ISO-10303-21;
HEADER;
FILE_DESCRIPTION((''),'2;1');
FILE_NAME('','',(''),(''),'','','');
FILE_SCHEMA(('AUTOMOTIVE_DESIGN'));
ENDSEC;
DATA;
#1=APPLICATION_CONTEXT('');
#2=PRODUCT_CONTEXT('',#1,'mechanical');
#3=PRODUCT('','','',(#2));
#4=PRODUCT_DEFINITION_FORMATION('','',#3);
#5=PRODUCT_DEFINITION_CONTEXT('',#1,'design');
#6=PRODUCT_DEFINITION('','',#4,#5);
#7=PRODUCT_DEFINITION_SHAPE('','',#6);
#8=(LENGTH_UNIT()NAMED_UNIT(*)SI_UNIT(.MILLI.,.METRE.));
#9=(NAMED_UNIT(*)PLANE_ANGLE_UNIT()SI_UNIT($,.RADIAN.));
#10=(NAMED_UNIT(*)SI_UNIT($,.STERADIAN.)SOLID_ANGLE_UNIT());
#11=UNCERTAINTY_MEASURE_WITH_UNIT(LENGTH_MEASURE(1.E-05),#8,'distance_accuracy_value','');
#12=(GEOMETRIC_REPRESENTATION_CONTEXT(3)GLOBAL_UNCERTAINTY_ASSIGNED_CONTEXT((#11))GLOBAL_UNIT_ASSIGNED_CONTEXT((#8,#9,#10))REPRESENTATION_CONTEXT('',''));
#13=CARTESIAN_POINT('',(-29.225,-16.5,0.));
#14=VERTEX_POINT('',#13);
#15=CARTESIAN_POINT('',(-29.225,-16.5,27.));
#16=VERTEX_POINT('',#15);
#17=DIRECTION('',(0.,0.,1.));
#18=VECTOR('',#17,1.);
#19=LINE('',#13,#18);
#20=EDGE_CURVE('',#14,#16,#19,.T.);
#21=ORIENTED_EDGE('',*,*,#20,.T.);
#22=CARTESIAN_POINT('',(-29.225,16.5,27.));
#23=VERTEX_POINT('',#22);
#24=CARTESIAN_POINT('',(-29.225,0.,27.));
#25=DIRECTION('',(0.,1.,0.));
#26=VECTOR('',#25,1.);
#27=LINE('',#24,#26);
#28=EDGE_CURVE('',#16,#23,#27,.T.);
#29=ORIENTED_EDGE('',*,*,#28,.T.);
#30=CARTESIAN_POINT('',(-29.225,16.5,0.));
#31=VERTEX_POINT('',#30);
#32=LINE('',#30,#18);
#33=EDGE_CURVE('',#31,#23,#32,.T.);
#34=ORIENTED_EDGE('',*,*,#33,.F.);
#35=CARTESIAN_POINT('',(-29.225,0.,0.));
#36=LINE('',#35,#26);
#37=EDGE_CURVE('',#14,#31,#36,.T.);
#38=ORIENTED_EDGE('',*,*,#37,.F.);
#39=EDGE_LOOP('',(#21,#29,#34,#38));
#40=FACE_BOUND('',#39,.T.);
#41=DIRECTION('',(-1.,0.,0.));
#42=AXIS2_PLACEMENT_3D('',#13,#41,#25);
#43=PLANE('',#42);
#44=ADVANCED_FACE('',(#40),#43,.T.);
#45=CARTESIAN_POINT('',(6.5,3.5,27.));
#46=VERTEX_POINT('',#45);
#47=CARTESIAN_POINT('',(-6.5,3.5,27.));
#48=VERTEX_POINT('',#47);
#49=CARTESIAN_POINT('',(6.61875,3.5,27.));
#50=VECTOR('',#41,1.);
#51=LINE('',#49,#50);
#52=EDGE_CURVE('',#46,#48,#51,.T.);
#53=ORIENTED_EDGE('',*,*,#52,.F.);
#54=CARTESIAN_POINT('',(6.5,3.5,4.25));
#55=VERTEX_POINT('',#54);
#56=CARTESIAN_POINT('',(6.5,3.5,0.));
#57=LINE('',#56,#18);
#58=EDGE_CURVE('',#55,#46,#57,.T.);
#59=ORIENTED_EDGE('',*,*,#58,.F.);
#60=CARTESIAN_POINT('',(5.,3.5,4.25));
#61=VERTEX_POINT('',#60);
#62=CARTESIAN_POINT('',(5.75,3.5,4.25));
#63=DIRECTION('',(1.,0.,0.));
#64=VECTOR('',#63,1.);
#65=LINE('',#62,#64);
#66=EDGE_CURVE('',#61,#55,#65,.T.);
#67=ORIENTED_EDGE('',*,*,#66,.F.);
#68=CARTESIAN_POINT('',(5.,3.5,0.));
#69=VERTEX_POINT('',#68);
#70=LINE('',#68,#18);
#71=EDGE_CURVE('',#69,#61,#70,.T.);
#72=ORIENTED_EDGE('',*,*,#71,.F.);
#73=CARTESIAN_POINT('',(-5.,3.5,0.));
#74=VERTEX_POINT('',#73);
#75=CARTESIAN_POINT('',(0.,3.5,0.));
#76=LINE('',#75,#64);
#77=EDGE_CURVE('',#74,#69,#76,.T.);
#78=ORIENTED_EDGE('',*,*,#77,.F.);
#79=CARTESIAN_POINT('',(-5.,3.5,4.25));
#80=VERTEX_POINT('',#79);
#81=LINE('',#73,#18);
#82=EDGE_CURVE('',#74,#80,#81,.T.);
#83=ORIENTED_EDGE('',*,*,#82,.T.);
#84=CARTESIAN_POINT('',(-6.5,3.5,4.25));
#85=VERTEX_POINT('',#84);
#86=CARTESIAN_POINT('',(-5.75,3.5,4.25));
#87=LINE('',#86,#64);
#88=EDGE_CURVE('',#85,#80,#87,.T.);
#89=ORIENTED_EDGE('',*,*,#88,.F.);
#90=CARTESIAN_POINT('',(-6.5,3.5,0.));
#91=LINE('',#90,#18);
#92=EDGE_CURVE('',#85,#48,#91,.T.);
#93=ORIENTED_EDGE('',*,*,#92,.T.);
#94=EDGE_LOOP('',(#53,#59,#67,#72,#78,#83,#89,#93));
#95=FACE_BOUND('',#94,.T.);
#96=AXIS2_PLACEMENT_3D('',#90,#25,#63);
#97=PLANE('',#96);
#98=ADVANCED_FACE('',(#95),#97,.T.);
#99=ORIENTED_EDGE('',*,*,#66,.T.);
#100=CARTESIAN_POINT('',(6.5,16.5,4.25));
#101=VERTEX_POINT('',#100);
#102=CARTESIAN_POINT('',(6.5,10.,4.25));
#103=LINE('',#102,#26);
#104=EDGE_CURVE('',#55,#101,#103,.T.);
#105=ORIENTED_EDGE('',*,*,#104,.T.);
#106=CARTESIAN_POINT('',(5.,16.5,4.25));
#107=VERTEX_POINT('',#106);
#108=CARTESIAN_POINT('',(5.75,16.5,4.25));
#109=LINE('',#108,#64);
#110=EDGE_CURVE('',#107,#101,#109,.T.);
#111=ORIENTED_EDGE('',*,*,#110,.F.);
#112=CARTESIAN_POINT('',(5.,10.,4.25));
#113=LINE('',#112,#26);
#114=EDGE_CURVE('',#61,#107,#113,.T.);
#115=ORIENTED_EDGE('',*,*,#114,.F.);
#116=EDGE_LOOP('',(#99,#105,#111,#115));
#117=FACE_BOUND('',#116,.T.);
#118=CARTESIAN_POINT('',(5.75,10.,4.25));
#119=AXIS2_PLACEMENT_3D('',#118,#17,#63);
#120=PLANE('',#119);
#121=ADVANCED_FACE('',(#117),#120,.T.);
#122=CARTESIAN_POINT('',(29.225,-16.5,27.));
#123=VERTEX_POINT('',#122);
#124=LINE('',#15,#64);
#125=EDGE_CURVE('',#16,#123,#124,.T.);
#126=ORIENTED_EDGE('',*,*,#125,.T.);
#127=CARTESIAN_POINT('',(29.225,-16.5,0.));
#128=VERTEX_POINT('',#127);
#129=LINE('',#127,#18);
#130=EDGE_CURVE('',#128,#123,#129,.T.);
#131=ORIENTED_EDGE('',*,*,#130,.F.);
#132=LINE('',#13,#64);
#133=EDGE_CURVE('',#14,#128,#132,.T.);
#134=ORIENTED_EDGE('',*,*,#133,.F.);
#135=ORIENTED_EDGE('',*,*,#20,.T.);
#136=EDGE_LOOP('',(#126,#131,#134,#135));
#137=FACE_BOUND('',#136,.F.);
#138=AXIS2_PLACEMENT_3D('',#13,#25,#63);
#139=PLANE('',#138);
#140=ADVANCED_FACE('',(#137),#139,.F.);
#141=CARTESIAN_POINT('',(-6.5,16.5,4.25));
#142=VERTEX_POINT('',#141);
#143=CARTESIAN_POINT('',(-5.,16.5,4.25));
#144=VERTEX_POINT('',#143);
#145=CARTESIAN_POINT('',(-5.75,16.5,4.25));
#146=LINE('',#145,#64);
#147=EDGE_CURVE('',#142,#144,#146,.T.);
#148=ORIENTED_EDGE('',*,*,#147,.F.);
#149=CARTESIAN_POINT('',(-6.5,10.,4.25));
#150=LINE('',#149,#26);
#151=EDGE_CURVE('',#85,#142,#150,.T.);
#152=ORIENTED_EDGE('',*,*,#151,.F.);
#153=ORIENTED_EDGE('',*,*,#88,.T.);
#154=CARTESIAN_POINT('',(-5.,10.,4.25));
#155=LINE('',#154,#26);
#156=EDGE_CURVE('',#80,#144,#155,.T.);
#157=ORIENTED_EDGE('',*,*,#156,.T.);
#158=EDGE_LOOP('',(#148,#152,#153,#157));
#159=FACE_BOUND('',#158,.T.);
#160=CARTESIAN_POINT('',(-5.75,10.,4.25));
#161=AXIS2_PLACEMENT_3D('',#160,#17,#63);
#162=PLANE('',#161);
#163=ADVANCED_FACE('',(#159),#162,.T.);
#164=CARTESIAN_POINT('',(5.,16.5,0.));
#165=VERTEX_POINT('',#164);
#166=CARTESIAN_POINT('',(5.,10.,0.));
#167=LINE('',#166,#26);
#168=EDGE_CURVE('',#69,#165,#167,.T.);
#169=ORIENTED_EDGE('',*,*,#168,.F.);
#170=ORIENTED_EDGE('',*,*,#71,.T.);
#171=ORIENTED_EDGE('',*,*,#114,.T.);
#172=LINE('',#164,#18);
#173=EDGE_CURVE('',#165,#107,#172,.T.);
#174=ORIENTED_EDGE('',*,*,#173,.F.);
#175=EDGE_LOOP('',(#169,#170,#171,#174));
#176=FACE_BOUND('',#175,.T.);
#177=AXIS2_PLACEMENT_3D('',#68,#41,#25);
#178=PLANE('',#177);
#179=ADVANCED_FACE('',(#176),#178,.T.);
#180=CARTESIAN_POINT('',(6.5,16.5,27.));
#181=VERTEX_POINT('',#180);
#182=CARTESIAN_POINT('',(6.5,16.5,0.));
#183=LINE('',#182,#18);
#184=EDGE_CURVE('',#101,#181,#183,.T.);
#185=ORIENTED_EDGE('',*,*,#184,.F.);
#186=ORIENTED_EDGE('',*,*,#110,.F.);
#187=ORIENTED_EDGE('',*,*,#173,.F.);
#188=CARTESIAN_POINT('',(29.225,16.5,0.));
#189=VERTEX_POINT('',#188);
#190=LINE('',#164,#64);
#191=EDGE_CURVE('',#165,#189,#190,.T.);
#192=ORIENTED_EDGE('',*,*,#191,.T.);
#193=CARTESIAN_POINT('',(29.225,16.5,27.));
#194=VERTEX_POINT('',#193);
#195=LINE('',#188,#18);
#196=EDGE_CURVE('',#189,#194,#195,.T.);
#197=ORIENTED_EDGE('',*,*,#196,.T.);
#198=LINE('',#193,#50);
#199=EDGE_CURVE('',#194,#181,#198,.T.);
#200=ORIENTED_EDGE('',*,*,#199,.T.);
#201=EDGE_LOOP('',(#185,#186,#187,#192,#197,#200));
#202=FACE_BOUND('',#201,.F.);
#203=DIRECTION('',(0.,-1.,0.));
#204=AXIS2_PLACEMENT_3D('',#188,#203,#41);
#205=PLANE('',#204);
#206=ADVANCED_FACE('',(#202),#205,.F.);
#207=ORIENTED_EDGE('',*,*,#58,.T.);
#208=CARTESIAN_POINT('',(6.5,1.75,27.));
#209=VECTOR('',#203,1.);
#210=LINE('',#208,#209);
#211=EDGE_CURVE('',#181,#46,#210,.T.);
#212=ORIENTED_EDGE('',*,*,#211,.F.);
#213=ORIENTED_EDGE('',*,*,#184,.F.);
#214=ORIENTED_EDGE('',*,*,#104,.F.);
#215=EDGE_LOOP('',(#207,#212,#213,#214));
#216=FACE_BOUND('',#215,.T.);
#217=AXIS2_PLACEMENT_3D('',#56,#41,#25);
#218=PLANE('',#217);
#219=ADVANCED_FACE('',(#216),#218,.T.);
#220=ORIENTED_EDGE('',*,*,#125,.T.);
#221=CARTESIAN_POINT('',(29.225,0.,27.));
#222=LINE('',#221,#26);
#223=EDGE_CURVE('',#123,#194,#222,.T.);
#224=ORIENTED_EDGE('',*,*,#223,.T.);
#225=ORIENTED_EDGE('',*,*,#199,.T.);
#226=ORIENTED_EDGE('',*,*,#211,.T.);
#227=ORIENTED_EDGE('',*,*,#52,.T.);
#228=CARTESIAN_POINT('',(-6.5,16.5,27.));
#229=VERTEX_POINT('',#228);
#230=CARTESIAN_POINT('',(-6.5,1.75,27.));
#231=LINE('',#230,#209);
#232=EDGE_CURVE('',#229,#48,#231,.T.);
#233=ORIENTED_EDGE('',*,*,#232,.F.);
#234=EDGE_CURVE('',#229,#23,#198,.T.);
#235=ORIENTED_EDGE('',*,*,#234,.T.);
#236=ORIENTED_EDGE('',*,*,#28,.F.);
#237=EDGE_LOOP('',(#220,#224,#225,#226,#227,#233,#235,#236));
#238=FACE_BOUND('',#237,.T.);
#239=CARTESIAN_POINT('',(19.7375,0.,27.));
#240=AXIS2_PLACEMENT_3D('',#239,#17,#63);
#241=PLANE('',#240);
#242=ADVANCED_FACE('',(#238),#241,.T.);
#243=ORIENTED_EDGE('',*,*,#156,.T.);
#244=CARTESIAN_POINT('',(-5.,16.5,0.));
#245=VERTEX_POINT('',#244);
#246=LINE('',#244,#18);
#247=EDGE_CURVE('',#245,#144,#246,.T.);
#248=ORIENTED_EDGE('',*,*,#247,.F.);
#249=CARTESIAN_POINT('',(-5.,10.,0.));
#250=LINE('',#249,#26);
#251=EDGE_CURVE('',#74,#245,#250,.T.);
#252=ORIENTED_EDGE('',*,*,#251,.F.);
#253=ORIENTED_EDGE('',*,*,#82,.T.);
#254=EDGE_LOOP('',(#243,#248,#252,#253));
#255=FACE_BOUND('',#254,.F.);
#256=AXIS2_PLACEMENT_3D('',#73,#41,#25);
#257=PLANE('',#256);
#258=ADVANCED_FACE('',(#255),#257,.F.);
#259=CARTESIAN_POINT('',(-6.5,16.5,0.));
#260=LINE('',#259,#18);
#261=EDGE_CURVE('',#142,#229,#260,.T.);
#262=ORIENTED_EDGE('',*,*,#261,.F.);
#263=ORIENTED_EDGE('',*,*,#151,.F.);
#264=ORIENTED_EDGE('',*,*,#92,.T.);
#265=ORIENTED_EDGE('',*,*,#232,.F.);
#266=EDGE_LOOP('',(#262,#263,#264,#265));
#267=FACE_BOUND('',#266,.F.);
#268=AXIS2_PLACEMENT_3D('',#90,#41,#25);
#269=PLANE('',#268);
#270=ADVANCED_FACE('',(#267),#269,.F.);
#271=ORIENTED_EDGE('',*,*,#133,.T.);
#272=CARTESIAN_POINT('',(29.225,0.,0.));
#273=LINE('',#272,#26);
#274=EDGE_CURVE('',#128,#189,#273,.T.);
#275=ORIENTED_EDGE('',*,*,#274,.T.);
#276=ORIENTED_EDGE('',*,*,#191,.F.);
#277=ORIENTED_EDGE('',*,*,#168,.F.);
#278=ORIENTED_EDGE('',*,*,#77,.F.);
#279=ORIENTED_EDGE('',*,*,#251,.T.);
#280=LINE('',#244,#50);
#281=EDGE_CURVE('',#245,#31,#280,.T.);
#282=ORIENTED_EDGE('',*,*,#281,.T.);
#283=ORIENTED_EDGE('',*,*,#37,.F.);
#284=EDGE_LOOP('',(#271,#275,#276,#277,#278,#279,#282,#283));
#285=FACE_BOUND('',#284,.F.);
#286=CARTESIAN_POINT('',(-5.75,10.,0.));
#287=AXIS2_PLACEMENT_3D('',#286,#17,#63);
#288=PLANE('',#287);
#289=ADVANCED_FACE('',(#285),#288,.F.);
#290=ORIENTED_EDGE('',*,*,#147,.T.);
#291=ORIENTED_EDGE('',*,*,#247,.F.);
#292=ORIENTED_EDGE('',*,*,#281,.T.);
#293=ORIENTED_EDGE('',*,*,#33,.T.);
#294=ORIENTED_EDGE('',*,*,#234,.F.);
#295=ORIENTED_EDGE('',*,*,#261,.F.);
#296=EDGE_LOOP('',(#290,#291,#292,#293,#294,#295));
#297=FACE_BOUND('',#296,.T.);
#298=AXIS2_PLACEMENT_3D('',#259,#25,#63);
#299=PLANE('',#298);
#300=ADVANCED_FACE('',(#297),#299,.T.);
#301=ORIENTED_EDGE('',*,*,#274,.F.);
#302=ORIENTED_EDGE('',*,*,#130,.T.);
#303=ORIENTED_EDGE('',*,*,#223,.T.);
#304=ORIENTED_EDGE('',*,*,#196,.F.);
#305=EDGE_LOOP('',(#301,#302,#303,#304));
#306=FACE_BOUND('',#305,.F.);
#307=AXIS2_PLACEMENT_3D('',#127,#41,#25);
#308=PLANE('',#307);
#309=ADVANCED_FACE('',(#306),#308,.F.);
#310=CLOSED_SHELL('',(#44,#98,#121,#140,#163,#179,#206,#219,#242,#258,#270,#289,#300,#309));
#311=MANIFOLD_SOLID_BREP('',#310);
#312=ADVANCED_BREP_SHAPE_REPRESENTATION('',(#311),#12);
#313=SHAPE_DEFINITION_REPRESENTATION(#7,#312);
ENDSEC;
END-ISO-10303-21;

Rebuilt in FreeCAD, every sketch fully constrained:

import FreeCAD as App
import Part
import Sketcher

V = App.Vector

doc = App.newDocument("Part")
body = doc.addObject("PartDesign::Body", "Body")

# Sketch on XY plane
sketch1 = body.newObject("Sketcher::SketchObject", "Sketch")
sketch1.AttachmentSupport = (doc.getObject("XY_Plane"), [""])
sketch1.MapMode = "FlatFace"
sketch1.addGeometry(Part.LineSegment(V(29.225, -16.5, 0), V(29.225, 16.5, 0)), False)
sketch1.addGeometry(Part.LineSegment(V(29.225, 16.5, 0), V(-29.225, 16.5, 0)), False)
sketch1.addGeometry(Part.LineSegment(V(-29.225, 16.5, 0), V(-29.225, -16.5, 0)), False)
sketch1.addGeometry(Part.LineSegment(V(-29.225, -16.5, 0), V(29.225, -16.5, 0)), False)
sketch1.addConstraint(Sketcher.Constraint("Coincident", 0, 2, 1, 1))
sketch1.addConstraint(Sketcher.Constraint("Coincident", 1, 2, 2, 1))
sketch1.addConstraint(Sketcher.Constraint("Coincident", 2, 2, 3, 1))
sketch1.addConstraint(Sketcher.Constraint("Coincident", 3, 2, 0, 1))
sketch1.addConstraint(Sketcher.Constraint("Vertical", 0))
sketch1.addConstraint(Sketcher.Constraint("Horizontal", 1))
sketch1.addConstraint(Sketcher.Constraint("Vertical", 2))
sketch1.addConstraint(Sketcher.Constraint("Horizontal", 3))
sketch1.addConstraint(Sketcher.Constraint("Symmetric", 0, 2, 2, 2, -1, 1))
sketch1.addConstraint(Sketcher.Constraint("DistanceY", 0, 1, 0, 2, 33.0))
sketch1.addConstraint(Sketcher.Constraint("DistanceX", 1, 2, 1, 1, 58.45))
pad1 = body.newObject("PartDesign::Pad", "Pad")
pad1.Profile = sketch1
pad1.Length = 27

# Sketch on XY plane
sketch2 = body.newObject("Sketcher::SketchObject", "Sketch001")
sketch2.AttachmentSupport = (doc.getObject("XY_Plane"), [""])
sketch2.MapMode = "FlatFace"
sketch2.addGeometry(Part.LineSegment(V(-6.5, 16.5, 0), V(-6.5, 3.5, 0)), False)
sketch2.addGeometry(Part.LineSegment(V(-6.5, 3.5, 0), V(6.5, 3.5, 0)), False)
sketch2.addGeometry(Part.LineSegment(V(6.5, 3.5, 0), V(6.5, 16.5, 0)), False)
sketch2.addGeometry(Part.LineSegment(V(6.5, 16.5, 0), V(-6.5, 16.5, 0)), False)
sketch2.addConstraint(Sketcher.Constraint("Coincident", 0, 2, 1, 1))
sketch2.addConstraint(Sketcher.Constraint("Coincident", 1, 2, 2, 1))
sketch2.addConstraint(Sketcher.Constraint("Coincident", 2, 2, 3, 1))
sketch2.addConstraint(Sketcher.Constraint("Coincident", 3, 2, 0, 1))
sketch2.addConstraint(Sketcher.Constraint("Vertical", 0))
sketch2.addConstraint(Sketcher.Constraint("Horizontal", 1))
sketch2.addConstraint(Sketcher.Constraint("Vertical", 2))
sketch2.addConstraint(Sketcher.Constraint("Horizontal", 3))
sketch2.addConstraint(Sketcher.Constraint("Equal", 3, 0))
sketch2.addConstraint(Sketcher.Constraint("DistanceX", 1, 1, 1, 2, 13.0))
sketch2.addConstraint(Sketcher.Constraint("DistanceX", 0, 2, -1, 1, 6.5))
sketch2.addConstraint(Sketcher.Constraint("DistanceY", -1, 1, 0, 2, 3.5))
pocket1 = body.newObject("PartDesign::Pocket", "Pocket")
pocket1.Profile = sketch2
pocket1.Type = "ThroughAll"
pocket1.Reversed = True

# Sketch on XY plane
sketch3 = body.newObject("Sketcher::SketchObject", "Sketch002")
sketch3.AttachmentSupport = (doc.getObject("XY_Plane"), [""])
sketch3.MapMode = "FlatFace"
sketch3.addGeometry(Part.LineSegment(V(-6.5, 16.5, 0), V(-6.5, 3.5, 0)), False)
sketch3.addGeometry(Part.LineSegment(V(-6.5, 3.5, 0), V(-5, 3.5, 0)), False)
sketch3.addGeometry(Part.LineSegment(V(-5, 3.5, 0), V(-5, 16.5, 0)), False)
sketch3.addGeometry(Part.LineSegment(V(-5, 16.5, 0), V(-6.5, 16.5, 0)), False)
sketch3.addGeometry(Part.LineSegment(V(5, 16.5, 0), V(5, 3.5, 0)), False)
sketch3.addGeometry(Part.LineSegment(V(5, 3.5, 0), V(6.5, 3.5, 0)), False)
sketch3.addGeometry(Part.LineSegment(V(6.5, 3.5, 0), V(6.5, 16.5, 0)), False)
sketch3.addGeometry(Part.LineSegment(V(6.5, 16.5, 0), V(5, 16.5, 0)), False)
sketch3.addConstraint(Sketcher.Constraint("Coincident", 0, 2, 1, 1))
sketch3.addConstraint(Sketcher.Constraint("Coincident", 1, 2, 2, 1))
sketch3.addConstraint(Sketcher.Constraint("Coincident", 2, 2, 3, 1))
sketch3.addConstraint(Sketcher.Constraint("Coincident", 3, 2, 0, 1))
sketch3.addConstraint(Sketcher.Constraint("Coincident", 4, 2, 5, 1))
sketch3.addConstraint(Sketcher.Constraint("Coincident", 5, 2, 6, 1))
sketch3.addConstraint(Sketcher.Constraint("Coincident", 6, 2, 7, 1))
sketch3.addConstraint(Sketcher.Constraint("Coincident", 7, 2, 4, 1))
sketch3.addConstraint(Sketcher.Constraint("Vertical", 0))
sketch3.addConstraint(Sketcher.Constraint("Horizontal", 1))
sketch3.addConstraint(Sketcher.Constraint("Vertical", 2))
sketch3.addConstraint(Sketcher.Constraint("Horizontal", 3))
sketch3.addConstraint(Sketcher.Constraint("Vertical", 4))
sketch3.addConstraint(Sketcher.Constraint("Horizontal", 5))
sketch3.addConstraint(Sketcher.Constraint("Vertical", 6))
sketch3.addConstraint(Sketcher.Constraint("Horizontal", 7))
sketch3.addConstraint(Sketcher.Constraint("Symmetric", 1, 2, 4, 2, -2))
sketch3.addConstraint(Sketcher.Constraint("Symmetric", 3, 2, 6, 2, -2))
sketch3.addConstraint(Sketcher.Constraint("DistanceY", 0, 2, 0, 1, 13.0))
sketch3.addConstraint(Sketcher.Constraint("DistanceX", 1, 1, 1, 2, 1.5))
sketch3.addConstraint(Sketcher.Constraint("DistanceX", 1, 2, -1, 1, 5.0))
sketch3.addConstraint(Sketcher.Constraint("DistanceY", -1, 1, 0, 2, 3.5))
pad2 = body.newObject("PartDesign::Pad", "Pad001")
pad2.Profile = sketch3
pad2.Length = 4.25

doc.recompute()
